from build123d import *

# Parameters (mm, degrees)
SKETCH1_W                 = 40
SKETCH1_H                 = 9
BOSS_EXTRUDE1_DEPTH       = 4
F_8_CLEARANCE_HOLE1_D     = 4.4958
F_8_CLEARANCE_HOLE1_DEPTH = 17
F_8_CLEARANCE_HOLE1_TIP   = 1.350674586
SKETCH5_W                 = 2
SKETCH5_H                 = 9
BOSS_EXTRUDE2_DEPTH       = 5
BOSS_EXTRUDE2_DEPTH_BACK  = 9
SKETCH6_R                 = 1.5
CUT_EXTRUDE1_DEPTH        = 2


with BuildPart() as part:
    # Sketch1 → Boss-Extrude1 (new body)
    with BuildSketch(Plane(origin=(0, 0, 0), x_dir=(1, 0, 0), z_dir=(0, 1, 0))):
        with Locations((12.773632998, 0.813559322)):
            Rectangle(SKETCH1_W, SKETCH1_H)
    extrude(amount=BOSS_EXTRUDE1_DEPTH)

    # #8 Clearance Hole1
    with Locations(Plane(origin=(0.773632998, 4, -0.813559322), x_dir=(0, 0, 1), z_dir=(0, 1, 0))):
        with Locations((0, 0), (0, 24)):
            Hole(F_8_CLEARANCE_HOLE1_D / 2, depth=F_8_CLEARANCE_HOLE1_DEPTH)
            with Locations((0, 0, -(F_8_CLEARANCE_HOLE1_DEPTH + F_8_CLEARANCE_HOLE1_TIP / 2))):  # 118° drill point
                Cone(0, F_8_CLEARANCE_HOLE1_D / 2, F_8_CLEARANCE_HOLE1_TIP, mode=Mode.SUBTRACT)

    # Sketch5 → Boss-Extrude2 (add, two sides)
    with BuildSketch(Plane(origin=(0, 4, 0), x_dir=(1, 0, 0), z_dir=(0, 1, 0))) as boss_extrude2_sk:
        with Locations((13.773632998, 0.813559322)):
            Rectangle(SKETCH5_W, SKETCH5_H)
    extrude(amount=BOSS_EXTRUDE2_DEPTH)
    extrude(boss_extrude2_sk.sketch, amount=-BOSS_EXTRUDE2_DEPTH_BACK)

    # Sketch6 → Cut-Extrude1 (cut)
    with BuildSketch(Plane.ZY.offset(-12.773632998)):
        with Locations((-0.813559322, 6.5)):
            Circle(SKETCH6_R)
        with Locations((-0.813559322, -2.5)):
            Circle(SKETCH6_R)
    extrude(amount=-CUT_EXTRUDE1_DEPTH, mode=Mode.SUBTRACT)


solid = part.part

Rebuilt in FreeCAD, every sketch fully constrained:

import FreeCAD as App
import Part
import Sketcher

V = App.Vector
Q = App.Units.Quantity

doc = App.newDocument("Part")
params = doc.addObject("Spreadsheet::Sheet", "Params")
for row, (alias, value) in enumerate([
    ("sketch1_width", "40 mm"),
    ("sketch1_height", "9 mm"),
    ("pad1_length", "4 mm"),
    ("hole_diameter", "4.4958 mm"),
    ("hole_depth", "17 mm"),
    ("sketch3_width", "2 mm"),
    ("sketch3_height", "9 mm"),
    ("pad2_length", "5 mm"),
    ("pad2_length2", "9 mm"),
    ("sketch4_diameter", "3 mm"),
    ("pocket1_length", "2 mm"),
], start=1):
    params.set(f"A{row}", alias)
    params.set(f"B{row}", "=" + value)
    params.setAlias(f"B{row}", alias)

body = doc.addObject("PartDesign::Body", "Body")

# Sketch on XZ plane
sketch1 = body.newObject("Sketcher::SketchObject", "Sketch")
sketch1.AttachmentSupport = (doc.getObject("XZ_Plane"), [""])
sketch1.MapMode = "FlatFace"
sketch1.addGeometry([
    Part.LineSegment(V(-7, -5, 0), V(-7, 4, 0)),
    Part.LineSegment(V(-7, 4, 0), V(33, 4, 0)),
    Part.LineSegment(V(33, 4, 0), V(33, -5, 0)),
    Part.LineSegment(V(33, -5, 0), V(-7, -5, 0)),
], False)
sketch1.addConstraint([
    Sketcher.Constraint("Coincident", 0, 2, 1, 1),
    Sketcher.Constraint("Coincident", 1, 2, 2, 1),
    Sketcher.Constraint("Coincident", 2, 2, 3, 1),
    Sketcher.Constraint("Coincident", 3, 2, 0, 1),
    Sketcher.Constraint("Vertical", 0),
    Sketcher.Constraint("Horizontal", 1),
    Sketcher.Constraint("Vertical", 2),
    Sketcher.Constraint("Horizontal", 3),
    Sketcher.Constraint("DistanceX", 1, 1, 1, 2, Q("40 mm")),
    Sketcher.Constraint("DistanceY", 0, 1, 0, 2, Q("9 mm")),
    Sketcher.Constraint("DistanceY", -1, 1, 0, 2, Q("3.686441 mm")),
    Sketcher.Constraint("DistanceX", 0, 2, -1, 1, Q("7.226367 mm")),
])
sketch1.setExpression("Constraints[8]", "Params.sketch1_width")
sketch1.setExpression("Constraints[9]", "Params.sketch1_height")
pad1 = body.newObject("PartDesign::Pad", "Pad")
pad1.Profile = sketch1
pad1.setExpression("Length", "Params.pad1_length")
pad1.Reversed = True

# Sketch on XZ plane
sketch2 = body.newObject("Sketcher::SketchObject", "Sketch001")
sketch2.AttachmentSupport = (doc.getObject("XZ_Plane"), [""])
sketch2.MapMode = "FlatFace"
sketch2.AttachmentOffset = App.Placement(V(0, 0, -4), App.Rotation())
sketch2.addGeometry([
    Part.Circle(V(0.8, -0.8, 0), V(0, 0, 1), 2.2),
    Part.Circle(V(24.8, -0.8, 0), V(0, 0, 1), 2.2),
], False)
sketch2.addConstraint([
    Sketcher.Constraint("Equal", 0, 1),
    Sketcher.Constraint("Horizontal", 0, 3, 1, 3),
    Sketcher.Constraint("DistanceX", 0, 3, 1, 3, Q("24 mm")),
    Sketcher.Constraint("Diameter", 0, Q("4.4958 mm")),
    Sketcher.Constraint("DistanceY", 0, 3, -1, 1, Q("0.813559 mm")),
    Sketcher.Constraint("DistanceX", -1, 1, 0, 3, Q("0.773633 mm")),
])
doc.recompute()
hole = body.newObject("PartDesign::Hole", "Hole")
hole.Profile = sketch2
hole.ThreadType = "None"
hole.setExpression("Diameter", "Params.hole_diameter")
hole.DepthType = "Dimension"
hole.setExpression("Depth", "Params.hole_depth")
hole.DrillPoint = "Angled"
hole.DrillPointAngle = 118
hole.Reversed = True

# Sketch on XZ plane
sketch3 = body.newObject("Sketcher::SketchObject", "Sketch002")
sketch3.AttachmentSupport = (doc.getObject("XZ_Plane"), [""])
sketch3.MapMode = "FlatFace"
sketch3.AttachmentOffset = App.Placement(V(0, 0, -4), App.Rotation())
sketch3.addGeometry([
    Part.LineSegment(V(12.8, -5.3, 0), V(12.8, 3.7, 0)),
    Part.LineSegment(V(12.8, 3.7, 0), V(14.8, 3.7, 0)),
    Part.LineSegment(V(14.8, 3.7, 0), V(14.8, -5.3, 0)),
    Part.LineSegment(V(14.8, -5.3, 0), V(12.8, -5.3, 0)),
], False)
sketch3.addConstraint([
    Sketcher.Constraint("Coincident", 0, 2, 1, 1),
    Sketcher.Constraint("Coincident", 1, 2, 2, 1),
    Sketcher.Constraint("Coincident", 2, 2, 3, 1),
    Sketcher.Constraint("Coincident", 3, 2, 0, 1),
    Sketcher.Constraint("Vertical", 0),
    Sketcher.Constraint("Horizontal", 1),
    Sketcher.Constraint("Vertical", 2),
    Sketcher.Constraint("Horizontal", 3),
    Sketcher.Constraint("DistanceX", 1, 1, 1, 2, Q("2 mm")),
    Sketcher.Constraint("DistanceY", 0, 1, 0, 2, Q("9 mm")),
    Sketcher.Constraint("DistanceY", -1, 1, 0, 2, Q("3.686441 mm")),
    Sketcher.Constraint("DistanceX", -1, 1, 0, 2, Q("12.773633 mm")),
])
sketch3.setExpression("Constraints[8]", "Params.sketch3_width")
sketch3.setExpression("Constraints[9]", "Params.sketch3_height")
pad2 = body.newObject("PartDesign::Pad", "Pad001")
pad2.Profile = sketch3
pad2.Type = "TwoLengths"
pad2.setExpression("Length", "Params.pad2_length")
pad2.setExpression("Length2", "Params.pad2_length2")
pad2.Reversed = True

# Sketch on YZ plane
sketch4 = body.newObject("Sketcher::SketchObject", "Sketch003")
sketch4.AttachmentSupport = (doc.getObject("YZ_Plane"), [""])
sketch4.MapMode = "FlatFace"
sketch4.AttachmentOffset = App.Placement(V(0, 0, 12.773633), App.Rotation())
sketch4.addGeometry([
    Part.Circle(V(6.5, -0.8, 0), V(0, 0, 1), 1.5),
    Part.Circle(V(-2.5, -0.8, 0), V(0, 0, 1), 1.5),
], False)
sketch4.addConstraint([
    Sketcher.Constraint("Equal", 0, 1),
    Sketcher.Constraint("Horizontal", 0, 3, 1, 3),
    Sketcher.Constraint("Diameter", 0, Q("3 mm")),
    Sketcher.Constraint("DistanceX", 1, 3, 0, 3, Q("9 mm")),
    Sketcher.Constraint("DistanceX", -1, 1, 0, 3, Q("6.5 mm")),
    Sketcher.Constraint("DistanceY", 0, 3, -1, 1, Q("0.813559 mm")),
])
sketch4.setExpression("Constraints[2]", "Params.sketch4_diameter")
pocket1 = body.newObject("PartDesign::Pocket", "Pocket")
pocket1.Profile = sketch4
pocket1.setExpression("Length", "Params.pocket1_length")
pocket1.Reversed = True

doc.recompute()
